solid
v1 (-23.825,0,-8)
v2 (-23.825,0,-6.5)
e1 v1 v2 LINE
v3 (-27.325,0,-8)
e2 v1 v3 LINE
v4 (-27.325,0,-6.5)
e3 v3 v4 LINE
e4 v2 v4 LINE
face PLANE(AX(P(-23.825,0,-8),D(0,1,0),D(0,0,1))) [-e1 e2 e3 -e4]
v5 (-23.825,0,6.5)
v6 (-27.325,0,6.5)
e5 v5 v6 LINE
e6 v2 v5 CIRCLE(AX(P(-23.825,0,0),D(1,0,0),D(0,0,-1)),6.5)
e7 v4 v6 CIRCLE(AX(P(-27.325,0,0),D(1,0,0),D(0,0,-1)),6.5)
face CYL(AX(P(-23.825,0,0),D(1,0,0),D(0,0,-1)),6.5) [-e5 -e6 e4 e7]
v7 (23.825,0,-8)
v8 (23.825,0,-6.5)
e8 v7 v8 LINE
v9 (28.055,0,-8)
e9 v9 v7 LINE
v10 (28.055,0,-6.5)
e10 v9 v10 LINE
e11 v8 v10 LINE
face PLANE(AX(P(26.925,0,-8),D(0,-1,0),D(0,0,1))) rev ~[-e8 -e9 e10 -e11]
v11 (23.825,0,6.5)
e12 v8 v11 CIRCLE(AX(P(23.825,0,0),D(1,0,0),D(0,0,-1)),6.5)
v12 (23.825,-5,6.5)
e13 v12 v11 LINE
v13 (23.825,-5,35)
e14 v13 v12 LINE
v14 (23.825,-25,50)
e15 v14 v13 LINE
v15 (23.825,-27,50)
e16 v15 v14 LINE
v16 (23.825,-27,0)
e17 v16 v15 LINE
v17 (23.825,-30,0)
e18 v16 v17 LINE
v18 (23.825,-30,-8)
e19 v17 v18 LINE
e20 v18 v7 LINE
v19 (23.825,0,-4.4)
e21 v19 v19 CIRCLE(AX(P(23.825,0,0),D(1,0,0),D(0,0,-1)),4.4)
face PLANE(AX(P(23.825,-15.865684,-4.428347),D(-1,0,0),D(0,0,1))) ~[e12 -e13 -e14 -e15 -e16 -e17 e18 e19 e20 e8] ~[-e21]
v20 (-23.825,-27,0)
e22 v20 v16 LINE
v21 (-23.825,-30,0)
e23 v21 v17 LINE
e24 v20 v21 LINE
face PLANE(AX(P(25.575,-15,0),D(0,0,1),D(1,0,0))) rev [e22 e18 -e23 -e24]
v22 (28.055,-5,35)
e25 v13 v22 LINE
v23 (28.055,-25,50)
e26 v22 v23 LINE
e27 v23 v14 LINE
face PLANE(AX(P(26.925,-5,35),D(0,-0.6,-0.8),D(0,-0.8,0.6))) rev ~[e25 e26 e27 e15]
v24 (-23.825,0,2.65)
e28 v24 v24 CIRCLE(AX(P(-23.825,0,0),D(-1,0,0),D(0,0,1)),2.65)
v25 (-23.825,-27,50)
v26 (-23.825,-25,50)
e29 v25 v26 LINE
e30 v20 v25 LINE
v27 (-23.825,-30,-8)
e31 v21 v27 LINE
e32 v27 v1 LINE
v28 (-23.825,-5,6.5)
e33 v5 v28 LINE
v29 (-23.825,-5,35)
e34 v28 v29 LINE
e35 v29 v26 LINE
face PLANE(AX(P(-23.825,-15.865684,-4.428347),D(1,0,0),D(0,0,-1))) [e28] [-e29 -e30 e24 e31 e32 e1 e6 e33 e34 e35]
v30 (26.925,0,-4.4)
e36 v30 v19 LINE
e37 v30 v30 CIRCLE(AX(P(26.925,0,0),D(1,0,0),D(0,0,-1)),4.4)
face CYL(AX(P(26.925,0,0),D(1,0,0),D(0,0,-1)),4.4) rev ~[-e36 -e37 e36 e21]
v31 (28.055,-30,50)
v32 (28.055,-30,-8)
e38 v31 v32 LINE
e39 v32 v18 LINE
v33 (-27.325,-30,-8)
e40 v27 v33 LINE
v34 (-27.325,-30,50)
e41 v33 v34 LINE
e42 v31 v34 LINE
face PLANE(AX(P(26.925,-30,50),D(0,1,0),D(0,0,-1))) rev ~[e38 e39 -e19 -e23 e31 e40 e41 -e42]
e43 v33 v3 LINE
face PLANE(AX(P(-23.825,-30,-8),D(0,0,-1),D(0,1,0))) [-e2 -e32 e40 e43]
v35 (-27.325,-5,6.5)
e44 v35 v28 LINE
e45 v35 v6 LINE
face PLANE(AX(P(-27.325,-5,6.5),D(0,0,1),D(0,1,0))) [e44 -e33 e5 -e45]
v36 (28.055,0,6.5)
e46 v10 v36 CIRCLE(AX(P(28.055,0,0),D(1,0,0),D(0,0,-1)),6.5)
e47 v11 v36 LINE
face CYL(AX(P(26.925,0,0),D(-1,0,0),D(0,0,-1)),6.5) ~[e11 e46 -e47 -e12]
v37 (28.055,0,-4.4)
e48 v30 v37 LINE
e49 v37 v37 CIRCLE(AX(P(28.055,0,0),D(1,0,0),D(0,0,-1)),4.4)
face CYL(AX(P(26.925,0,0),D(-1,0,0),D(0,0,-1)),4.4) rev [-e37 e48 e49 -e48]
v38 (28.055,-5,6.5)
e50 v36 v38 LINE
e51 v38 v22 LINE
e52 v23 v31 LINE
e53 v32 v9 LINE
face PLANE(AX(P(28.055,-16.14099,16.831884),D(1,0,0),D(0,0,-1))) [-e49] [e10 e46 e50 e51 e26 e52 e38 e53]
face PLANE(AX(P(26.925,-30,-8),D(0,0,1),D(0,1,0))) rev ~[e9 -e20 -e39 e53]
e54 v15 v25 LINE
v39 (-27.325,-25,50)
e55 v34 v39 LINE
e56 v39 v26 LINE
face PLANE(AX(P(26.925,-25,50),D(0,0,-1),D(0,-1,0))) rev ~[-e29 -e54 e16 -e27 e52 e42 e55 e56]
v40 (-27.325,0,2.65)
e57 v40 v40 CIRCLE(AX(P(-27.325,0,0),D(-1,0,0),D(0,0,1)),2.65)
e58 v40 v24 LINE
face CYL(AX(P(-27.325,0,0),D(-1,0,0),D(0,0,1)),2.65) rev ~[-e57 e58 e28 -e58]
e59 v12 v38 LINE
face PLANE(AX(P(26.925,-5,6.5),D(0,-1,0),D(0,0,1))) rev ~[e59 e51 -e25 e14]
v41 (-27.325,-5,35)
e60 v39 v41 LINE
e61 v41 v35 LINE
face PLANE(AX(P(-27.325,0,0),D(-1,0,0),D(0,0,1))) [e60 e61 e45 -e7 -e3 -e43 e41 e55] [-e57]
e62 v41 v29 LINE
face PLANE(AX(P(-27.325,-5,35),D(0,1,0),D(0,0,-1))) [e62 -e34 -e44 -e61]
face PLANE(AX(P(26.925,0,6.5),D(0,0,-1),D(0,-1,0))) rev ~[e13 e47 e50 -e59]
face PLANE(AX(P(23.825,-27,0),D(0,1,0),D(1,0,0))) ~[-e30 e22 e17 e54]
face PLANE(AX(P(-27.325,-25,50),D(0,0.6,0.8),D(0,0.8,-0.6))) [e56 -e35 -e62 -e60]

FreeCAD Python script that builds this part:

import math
import FreeCAD as App
import Part
import Sketcher
Q = App.Units.Quantity


def add_polygon(sketch, points):
    """Adds a closed chain of lines whose ends are joined by coincident constraints."""
    first, n = sketch.GeometryCount, len(points)
    for a, b in zip(points, points[1:] + points[:1]):
        sketch.addGeometry(Part.LineSegment(App.Vector(*a, 0), App.Vector(*b, 0)), False)
    for i in range(n):
        sketch.addConstraint(Sketcher.Constraint("Coincident", first + i, 2, first + (i + 1) % n, 1))

doc = App.newDocument("Part")
params = doc.addObject("Spreadsheet::Sheet", "Params")
for row, (alias, value) in enumerate([
    ("sketch1_height", "30 mm"),
    ("sketch1_height2", "3 mm"),
    ("sketch1_width", "3.5 mm"),
    ("pad1_length", "50 mm"),
    ("sketch2_radius", "6.5 mm"),
    ("sketch2_radius2", "1.5 mm"),
    ("sketch2_width", "30 mm"),
    ("sketch2_height", "8 mm"),
    ("pad2_length", "3.5 mm"),
    ("sketch3_diameter", "3 mm"),
    ("pocket1_length", "29.325 mm"),
    ("sketch4_diameter", "5 mm"),
    ("pocket2_length", "1 mm"),
    ("pocket2_length2", "3.15 mm"),
    ("sketch5_diameter", "5.8 mm"),
    ("pocket3_length", "7.15 mm"),
    ("sketch6_width", "25 mm"),
    ("sketch6_width2", "5 mm"),
    ("sketch6_length", "25 mm"),
    ("sketch6_height", "43.5 mm"),
    ("pocket4_length", "7.15 mm"),
    ("sketch7_diameter", "5 mm"),
    ("sketch7_diameter2", "3 mm"),
    ("pad3_length", "0.65 mm"),
    ("sketch8_radius", "6.5 mm"),
    ("sketch8_width", "30 mm"),
    ("sketch8_height", "1.5 mm"),
    ("pocket5_length", "0.4 mm"),
    ("sketch9_diameter", "8.8 mm"),
    ("sketch9_radius", "6.5 mm"),
    ("sketch9_width", "5 mm"),
    ("sketch9_width2", "30 mm"),
    ("sketch9_height", "58 mm"),
    ("pad4_length", "1.13 mm"),
    ("sketch10_diameter", "5 mm"),
    ("sketch10_diameter2", "3 mm"),
    ("pad5_length", "2.5 mm"),
    ("sketch11_diameter", "5.3 mm"),
    ("pocket6_length", "5.05 mm"),
    ("sketch12_diameter", "8.8 mm"),
    ("pocket7_length", "10 mm"),
    ("pocket7_length2", "10 mm"),
], start=1):
    params.set(f"A{row}", alias)
    params.set(f"B{row}", "=" + value)
    params.setAlias(f"B{row}", alias)

body = doc.addObject("PartDesign::Body", "Body")

# Sketch on XY plane
sketch1 = body.newObject("Sketcher::SketchObject", "Sketch")
sketch1.AttachmentSupport = (doc.getObject("XY_Plane"), [""])
sketch1.MapMode = "FlatFace"
add_polygon(sketch1, [(-27.3, 0), (-27.3, -30), (0, -30), (0, -27), (-23.8, -27), (-23.8, 0)])  # lines 0-5
sketch1.addConstraint(Sketcher.Constraint("Vertical", 0))
sketch1.addConstraint(Sketcher.Constraint("Horizontal", 1))
sketch1.addConstraint(Sketcher.Constraint("Vertical", 2))
sketch1.addConstraint(Sketcher.Constraint("Horizontal", 3))
sketch1.addConstraint(Sketcher.Constraint("Vertical", 4))
sketch1.addConstraint(Sketcher.Constraint("Horizontal", 5))
sketch1.addConstraint(Sketcher.Constraint("PointOnObject", 1, 2, -2))
sketch1.addConstraint(Sketcher.Constraint("PointOnObject", 4, 2, -1))
sketch1.addConstraint(Sketcher.Constraint("DistanceY", 0, 2, 0, 1, Q("30 mm")))
sketch1.addConstraint(Sketcher.Constraint("DistanceY", 2, 1, 2, 2, Q("3 mm")))
sketch1.addConstraint(Sketcher.Constraint("DistanceX", 5, 2, 5, 1, Q("3.5 mm")))
sketch1.addConstraint(Sketcher.Constraint("DistanceX", 1, 1, 1, 2, Q("27.325 mm")))
sketch1.setExpression("Constraints[14]", "Params.sketch1_height")
sketch1.setExpression("Constraints[15]", "Params.sketch1_height2")
sketch1.setExpression("Constraints[16]", "Params.sketch1_width")
pad1 = body.newObject("PartDesign::Pad", "Pad")
pad1.Profile = sketch1
pad1.setExpression("Length", "Params.pad1_length")

# Sketch on YZ plane
sketch2 = body.newObject("Sketcher::SketchObject", "Sketch001")
sketch2.AttachmentSupport = (doc.getObject("YZ_Plane"), [""])
sketch2.MapMode = "FlatFace"
sketch2.AttachmentOffset = App.Placement(App.Vector(0, 0, -23.825), App.Rotation())
sketch2.addGeometry(Part.LineSegment(App.Vector(0, -8, 0), App.Vector(0, -6.5, 0)), False)
sketch2.addGeometry(Part.ArcOfCircle(Part.Circle(App.Vector(0, 0, 0), App.Vector(0, 0, 1), 6.5), math.radians(-90), math.radians(90)), False)
sketch2.addGeometry(Part.LineSegment(App.Vector(0, 6.5, 0), App.Vector(0, 1.5, 0)), False)
sketch2.addGeometry(Part.ArcOfCircle(Part.Circle(App.Vector(0, 0, 0), App.Vector(0, 0, 1), 1.5), math.radians(-90), math.radians(90)), False)
sketch2.addGeometry(Part.ArcOfCircle(Part.Circle(App.Vector(0, 0, 0), App.Vector(0, 0, 1), 1.5), math.radians(180), math.radians(270)), False)
sketch2.addGeometry(Part.LineSegment(App.Vector(-1.5, 0, 0), App.Vector(-30, 0, 0)), False)
sketch2.addGeometry(Part.LineSegment(App.Vector(-30, 0, 0), App.Vector(-30, -8, 0)), False)
sketch2.addGeometry(Part.LineSegment(App.Vector(-30, -8, 0), App.Vector(0, -8, 0)), False)
sketch2.addConstraint(Sketcher.Constraint("Coincident", 0, 2, 1, 1))
sketch2.addConstraint(Sketcher.Constraint("Coincident", 1, 2, 2, 1))
sketch2.addConstraint(Sketcher.Constraint("Coincident", 2, 2, 3, 2))
sketch2.addConstraint(Sketcher.Constraint("Tangent", 3, 1, 4, 2))
sketch2.addConstraint(Sketcher.Constraint("Coincident", 4, 1, 5, 1))
sketch2.addConstraint(Sketcher.Constraint("Coincident", 5, 2, 6, 1))
sketch2.addConstraint(Sketcher.Constraint("Coincident", 6, 2, 7, 1))
sketch2.addConstraint(Sketcher.Constraint("Coincident", 7, 2, 0, 1))
sketch2.addConstraint(Sketcher.Constraint("Vertical", 0))
sketch2.addConstraint(Sketcher.Constraint("Vertical", 2))
sketch2.addConstraint(Sketcher.Constraint("Horizontal", 5))
sketch2.addConstraint(Sketcher.Constraint("Vertical", 6))
sketch2.addConstraint(Sketcher.Constraint("Horizontal", 7))
sketch2.addConstraint(Sketcher.Constraint("Coincident", 1, 3, -1, 1))
sketch2.addConstraint(Sketcher.Constraint("Coincident", 3, 3, -1, 1))
sketch2.addConstraint(Sketcher.Constraint("Equal", 3, 4))
sketch2.addConstraint(Sketcher.Constraint("PointOnObject", 0, 2, -2))
sketch2.addConstraint(Sketcher.Constraint("PointOnObject", 1, 2, -2))
sketch2.addConstraint(Sketcher.Constraint("PointOnObject", 3, 1, -2))
sketch2.addConstraint(Sketcher.Constraint("PointOnObject", 4, 1, -1))
sketch2.addConstraint(Sketcher.Constraint("Radius", 1, Q("6.5 mm")))
sketch2.addConstraint(Sketcher.Constraint("Radius", 3, Q("1.5 mm")))
sketch2.addConstraint(Sketcher.Constraint("DistanceX", 7, 1, 7, 2, Q("30 mm")))
sketch2.addConstraint(Sketcher.Constraint("DistanceY", 6, 2, 6, 1, Q("8 mm")))
sketch2.setExpression("Constraints[20]", "Params.sketch2_radius")
sketch2.setExpression("Constraints[21]", "Params.sketch2_radius2")
sketch2.setExpression("Constraints[22]", "Params.sketch2_width")
sketch2.setExpression("Constraints[23]", "Params.sketch2_height")
pad2 = body.newObject("PartDesign::Pad", "Pad001")
pad2.Profile = sketch2
pad2.setExpression("Length", "Params.pad2_length")
pad2.Reversed = True

# Sketch on YZ plane
sketch3 = body.newObject("Sketcher::SketchObject", "Sketch002")
sketch3.AttachmentSupport = (doc.getObject("YZ_Plane"), [""])
sketch3.MapMode = "FlatFace"
sketch3.AttachmentOffset = App.Placement(App.Vector(0, 0, 1), App.Rotation())
sketch3.addGeometry(Part.Circle(App.Vector(0, 0, 0), App.Vector(0, 0, 1), 1.5), False)
sketch3.addConstraint(Sketcher.Constraint("Coincident", 0, 3, -1, 1))
sketch3.addConstraint(Sketcher.Constraint("Diameter", 0, Q("3 mm")))
sketch3.setExpression("Constraints[1]", "Params.sketch3_diameter")
pocket1 = body.newObject("PartDesign::Pocket", "Pocket")
pocket1.Profile = sketch3
pocket1.setExpression("Length", "Params.pocket1_length")
doc.recompute()

mirrored = body.newObject("PartDesign::Mirrored", "Mirrored")
mirrored.Originals = [pad1, pad2, pocket1]
mirrored.MirrorPlane = (doc.getObject("YZ_Plane"), [""])
body.Tip = mirrored

# Sketch on YZ plane
sketch4 = body.newObject("Sketcher::SketchObject", "Sketch003")
sketch4.AttachmentSupport = (doc.getObject("YZ_Plane"), [""])
sketch4.MapMode = "FlatFace"
sketch4.AttachmentOffset = App.Placement(App.Vector(0, 0, -27.325), App.Rotation())
sketch4.addGeometry(Part.Circle(App.Vector(0, 0, 0), App.Vector(0, 0, 1), 2.5), False)
sketch4.addConstraint(Sketcher.Constraint("Coincident", 0, 3, -1, 1))
sketch4.addConstraint(Sketcher.Constraint("Diameter", 0, Q("5 mm")))
sketch4.setExpression("Constraints[1]", "Params.sketch4_diameter")
pocket2 = body.newObject("PartDesign::Pocket", "Pocket001")
pocket2.Profile = sketch4
pocket2.Type = "TwoLengths"
pocket2.setExpression("Length", "Params.pocket2_length")
pocket2.setExpression("Length2", "Params.pocket2_length2")

# Sketch on YZ plane
sketch5 = body.newObject("Sketcher::SketchObject", "Sketch004")
sketch5.AttachmentSupport = (doc.getObject("YZ_Plane"), [""])
sketch5.MapMode = "FlatFace"
sketch5.AttachmentOffset = App.Placement(App.Vector(0, 0, 27.325), App.Rotation())
sketch5.addGeometry(Part.Circle(App.Vector(0, 0, 0), App.Vector(0, 0, 1), 2.9), False)
sketch5.addConstraint(Sketcher.Constraint("Coincident", 0, 3, -1, 1))
sketch5.addConstraint(Sketcher.Constraint("Diameter", 0, Q("5.8 mm")))
sketch5.setExpression("Constraints[1]", "Params.sketch5_diameter")
pocket3 = body.newObject("PartDesign::Pocket", "Pocket002")
pocket3.Profile = sketch5
pocket3.setExpression("Length", "Params.pocket3_length")

# Sketch on YZ plane
sketch6 = body.newObject("Sketcher::SketchObject", "Sketch005")
sketch6.AttachmentSupport = (doc.getObject("YZ_Plane"), [""])
sketch6.MapMode = "FlatFace"
sketch6.AttachmentOffset = App.Placement(App.Vector(0, 0, -27.325), App.Rotation())
add_polygon(sketch6, [(-25, 50), (0, 50), (0, 6), (-5, 6), (-5, 35)])  # lines 0-4
sketch6.addConstraint(Sketcher.Constraint("Horizontal", 0))
sketch6.addConstraint(Sketcher.Constraint("Vertical", 1))
sketch6.addConstraint(Sketcher.Constraint("Horizontal", 2))
sketch6.addConstraint(Sketcher.Constraint("Vertical", 3))
sketch6.addConstraint(Sketcher.Constraint("PointOnObject", 0, 2, -2))
sketch6.addConstraint(Sketcher.Constraint("DistanceX", 0, 1, 0, 2, Q("25 mm")))
sketch6.addConstraint(Sketcher.Constraint("DistanceX", 2, 2, 2, 1, Q("5 mm")))
sketch6.addConstraint(Sketcher.Constraint("Distance", 4, Q("25 mm")))
sketch6.addConstraint(Sketcher.Constraint("DistanceY", 1, 2, 1, 1, Q("43.5 mm")))
sketch6.addConstraint(Sketcher.Constraint("DistanceY", -1, 1, 0, 2, Q("50 mm")))
sketch6.setExpression("Constraints[10]", "Params.sketch6_width")
sketch6.setExpression("Constraints[11]", "Params.sketch6_width2")
sketch6.setExpression("Constraints[12]", "Params.sketch6_length")
sketch6.setExpression("Constraints[13]", "Params.sketch6_height")
pocket4 = body.newObject("PartDesign::Pocket", "Pocket003")
pocket4.Profile = sketch6
pocket4.setExpression("Length", "Params.pocket4_length")
pocket4.Reversed = True
doc.recompute()

mirrored2 = body.newObject("PartDesign::Mirrored", "Mirrored001")
mirrored2.Originals = [pocket4]
mirrored2.MirrorPlane = (doc.getObject("YZ_Plane"), [""])
body.Tip = mirrored2

# Sketch on YZ plane
sketch7 = body.newObject("Sketcher::SketchObject", "Sketch006")
sketch7.AttachmentSupport = (doc.getObject("YZ_Plane"), [""])
sketch7.MapMode = "FlatFace"
sketch7.AttachmentOffset = App.Placement(App.Vector(0, 0, -24.175), App.Rotation())
sketch7.addGeometry(Part.Circle(App.Vector(0, 0, 0), App.Vector(0, 0, 1), 2.5), False)
sketch7.addGeometry(Part.Circle(App.Vector(0, 0, 0), App.Vector(0, 0, 1), 1.5), False)
sketch7.addConstraint(Sketcher.Constraint("Coincident", 0, 3, -1, 1))
sketch7.addConstraint(Sketcher.Constraint("Coincident", 1, 3, -1, 1))
sketch7.addConstraint(Sketcher.Constraint("Diameter", 0, Q("5 mm")))
sketch7.addConstraint(Sketcher.Constraint("Diameter", 1, Q("3 mm")))
sketch7.setExpression("Constraints[2]", "Params.sketch7_diameter")
sketch7.setExpression("Constraints[3]", "Params.sketch7_diameter2")
pad3 = body.newObject("PartDesign::Pad", "Pad002")
pad3.Profile = sketch7
pad3.setExpression("Length", "Params.pad3_length")
pad3.Reversed = True

# Sketch on YZ plane
sketch8 = body.newObject("Sketcher::SketchObject", "Sketch007")
sketch8.AttachmentSupport = (doc.getObject("YZ_Plane"), [""])
sketch8.MapMode = "FlatFace"
sketch8.AttachmentOffset = App.Placement(App.Vector(0, 0, 27.325), App.Rotation())
sketch8.addGeometry(Part.ArcOfCircle(Part.Circle(App.Vector(0, 0, 0), App.Vector(0, 0, 1), 6.5), math.radians(-90), math.radians(90)), False)
sketch8.addGeometry(Part.LineSegment(App.Vector(0, 6.5, 0), App.Vector(-3.8, 6.5, 0)), False)
sketch8.addGeometry(Part.LineSegment(App.Vector(-3.8, 6.5, 0), App.Vector(-3.8, 52.6, 0)), False)
sketch8.addGeometry(Part.LineSegment(App.Vector(-3.8, 52.6, 0), App.Vector(-30, 52.6, 0)), False)
sketch8.addGeometry(Part.LineSegment(App.Vector(-30, 52.6, 0), App.Vector(-30, -8, 0)), False)
sketch8.addGeometry(Part.LineSegment(App.Vector(-30, -8, 0), App.Vector(0, -8, 0)), False)
sketch8.addGeometry(Part.LineSegment(App.Vector(0, -8, 0), App.Vector(0, -6.5, 0)), False)
sketch8.addConstraint(Sketcher.Constraint("Tangent", 0, 2, 1, 1))
sketch8.addConstraint(Sketcher.Constraint("Coincident", 1, 2, 2, 1))
sketch8.addConstraint(Sketcher.Constraint("Coincident", 2, 2, 3, 1))
sketch8.addConstraint(Sketcher.Constraint("Coincident", 3, 2, 4, 1))
sketch8.addConstraint(Sketcher.Constraint("Coincident", 4, 2, 5, 1))
sketch8.addConstraint(Sketcher.Constraint("Coincident", 5, 2, 6, 1))
sketch8.addConstraint(Sketcher.Constraint("Coincident", 6, 2, 0, 1))
sketch8.addConstraint(Sketcher.Constraint("Horizontal", 1))
sketch8.addConstraint(Sketcher.Constraint("Vertical", 2))
sketch8.addConstraint(Sketcher.Constraint("Horizontal", 3))
sketch8.addConstraint(Sketcher.Constraint("Vertical", 4))
sketch8.addConstraint(Sketcher.Constraint("Horizontal", 5))
sketch8.addConstraint(Sketcher.Constraint("Vertical", 6))
sketch8.addConstraint(Sketcher.Constraint("Coincident", 0, 3, -1, 1))
sketch8.addConstraint(Sketcher.Constraint("PointOnObject", 5, 2, -2))
sketch8.addConstraint(Sketcher.Constraint("Radius", 0, Q("6.5 mm")))
sketch8.addConstraint(Sketcher.Constraint("DistanceX", 5, 1, 5, 2, Q("30 mm")))
sketch8.addConstraint(Sketcher.Constraint("DistanceY", 6, 1, 6, 2, Q("1.5 mm")))
sketch8.addConstraint(Sketcher.Constraint("DistanceX", 1, 2, 1, 1, Q("3.791433 mm")))
sketch8.addConstraint(Sketcher.Constraint("DistanceY", 2, 1, 2, 2, Q("46.117217 mm")))
sketch8.setExpression("Constraints[15]", "Params.sketch8_radius")
sketch8.setExpression("Constraints[16]", "Params.sketch8_width")
sketch8.setExpression("Constraints[17]", "Params.sketch8_height")
pocket5 = body.newObject("PartDesign::Pocket", "Pocket004")
pocket5.Profile = sketch8
pocket5.setExpression("Length", "Params.pocket5_length")

# Sketch on YZ plane
sketch9 = body.newObject("Sketcher::SketchObject", "Sketch008")
sketch9.AttachmentSupport = (doc.getObject("YZ_Plane"), [""])
sketch9.MapMode = "FlatFace"
sketch9.AttachmentOffset = App.Placement(App.Vector(0, 0, 26.925), App.Rotation())
sketch9.addGeometry(Part.LineSegment(App.Vector(0, -8, 0), App.Vector(0, -6.5, 0)), False)
sketch9.addGeometry(Part.ArcOfCircle(Part.Circle(App.Vector(0, 0, 0), App.Vector(0, 0, 1), 6.5), math.radians(-90), math.radians(90)), False)
sketch9.addGeometry(Part.LineSegment(App.Vector(0, 6.5, 0), App.Vector(-5, 6.5, 0)), False)
sketch9.addGeometry(Part.LineSegment(App.Vector(-5, 6.5, 0), App.Vector(-5, 35, 0)), False)
sketch9.addGeometry(Part.LineSegment(App.Vector(-5, 35, 0), App.Vector(-25, 50, 0)), False)
sketch9.addGeometry(Part.LineSegment(App.Vector(-25, 50, 0), App.Vector(-30, 50, 0)), False)
sketch9.addGeometry(Part.LineSegment(App.Vector(-30, 50, 0), App.Vector(-30, -8, 0)), False)
sketch9.addGeometry(Part.LineSegment(App.Vector(-30, -8, 0), App.Vector(0, -8, 0)), False)
sketch9.addGeometry(Part.Circle(App.Vector(0, 0, 0), App.Vector(0, 0, 1), 4.4), False)
sketch9.addConstraint(Sketcher.Constraint("Coincident", 0, 2, 1, 1))
sketch9.addConstraint(Sketcher.Constraint("Tangent", 1, 2, 2, 1))
sketch9.addConstraint(Sketcher.Constraint("Coincident", 2, 2, 3, 1))
sketch9.addConstraint(Sketcher.Constraint("Coincident", 3, 2, 4, 1))
sketch9.addConstraint(Sketcher.Constraint("Coincident", 4, 2, 5, 1))
sketch9.addConstraint(Sketcher.Constraint("Coincident", 5, 2, 6, 1))
sketch9.addConstraint(Sketcher.Constraint("Coincident", 6, 2, 7, 1))
sketch9.addConstraint(Sketcher.Constraint("Coincident", 7, 2, 0, 1))
sketch9.addConstraint(Sketcher.Constraint("Vertical", 0))
sketch9.addConstraint(Sketcher.Constraint("Horizontal", 2))
sketch9.addConstraint(Sketcher.Constraint("Vertical", 3))
sketch9.addConstraint(Sketcher.Constraint("Horizontal", 5))
sketch9.addConstraint(Sketcher.Constraint("Vertical", 6))
sketch9.addConstraint(Sketcher.Constraint("Horizontal", 7))
sketch9.addConstraint(Sketcher.Constraint("Coincident", 1, 3, -1, 1))
sketch9.addConstraint(Sketcher.Constraint("Coincident", 8, 3, -1, 1))
sketch9.addConstraint(Sketcher.Constraint("PointOnObject", 0, 2, -2))
sketch9.addConstraint(Sketcher.Constraint("Equal", 2, 5))
sketch9.addConstraint(Sketcher.Constraint("Diameter", 8, Q("8.8 mm")))
sketch9.addConstraint(Sketcher.Constraint("Radius", 1, Q("6.5 mm")))
sketch9.addConstraint(Sketcher.Constraint("DistanceX", 2, 2, 2, 1, Q("5 mm")))
sketch9.addConstraint(Sketcher.Constraint("DistanceX", 7, 1, 7, 2, Q("30 mm")))
sketch9.addConstraint(Sketcher.Constraint("DistanceY", 6, 2, 6, 1, Q("58 mm")))
sketch9.addConstraint(Sketcher.Constraint("Distance", 4, Q("25 mm")))
sketch9.addConstraint(Sketcher.Constraint("DistanceY", 0, 1, 0, 2, Q("1.5 mm")))
sketch9.setExpression("Constraints[18]", "Params.sketch9_diameter")
sketch9.setExpression("Constraints[19]", "Params.sketch9_radius")
sketch9.setExpression("Constraints[20]", "Params.sketch9_width")
sketch9.setExpression("Constraints[21]", "Params.sketch9_width2")
sketch9.setExpression("Constraints[22]", "Params.sketch9_height")
pad4 = body.newObject("PartDesign::Pad", "Pad003")
pad4.Profile = sketch9
pad4.setExpression("Length", "Params.pad4_length")

# Sketch on YZ plane
sketch10 = body.newObject("Sketcher::SketchObject", "Sketch009")
sketch10.AttachmentSupport = (doc.getObject("YZ_Plane"), [""])
sketch10.MapMode = "FlatFace"
sketch10.AttachmentOffset = App.Placement(App.Vector(0, 0, -27.325), App.Rotation())
sketch10.addGeometry(Part.Circle(App.Vector(0, 0, 0), App.Vector(0, 0, 1), 2.5), False)
sketch10.addGeometry(Part.Circle(App.Vector(0, 0, 0), App.Vector(0, 0, 1), 1.5), False)
sketch10.addConstraint(Sketcher.Constraint("Coincident", 0, 3, -1, 1))
sketch10.addConstraint(Sketcher.Constraint("Coincident", 1, 3, -1, 1))
sketch10.addConstraint(Sketcher.Constraint("Diameter", 0, Q("5 mm")))
sketch10.addConstraint(Sketcher.Constraint("Diameter", 1, Q("3 mm")))
sketch10.setExpression("Constraints[2]", "Params.sketch10_diameter")
sketch10.setExpression("Constraints[3]", "Params.sketch10_diameter2")
pad5 = body.newObject("PartDesign::Pad", "Pad004")
pad5.Profile = sketch10
pad5.setExpression("Length", "Params.pad5_length")

# Sketch on YZ plane
sketch11 = body.newObject("Sketcher::SketchObject", "Sketch010")
sketch11.AttachmentSupport = (doc.getObject("YZ_Plane"), [""])
sketch11.MapMode = "FlatFace"
sketch11.AttachmentOffset = App.Placement(App.Vector(0, 0, -27.325), App.Rotation())
sketch11.addGeometry(Part.Circle(App.Vector(0, 0, 0), App.Vector(0, 0, 1), 2.6), False)
sketch11.addConstraint(Sketcher.Constraint("Coincident", 0, 3, -1, 1))
sketch11.addConstraint(Sketcher.Constraint("Diameter", 0, Q("5.3 mm")))
sketch11.setExpression("Constraints[1]", "Params.sketch11_diameter")
pocket6 = body.newObject("PartDesign::Pocket", "Pocket005")
pocket6.Profile = sketch11
pocket6.setExpression("Length", "Params.pocket6_length")
pocket6.Reversed = True

# Sketch on YZ plane
sketch12 = body.newObject("Sketcher::SketchObject", "Sketch011")
sketch12.AttachmentSupport = (doc.getObject("YZ_Plane"), [""])
sketch12.MapMode = "FlatFace"
sketch12.AttachmentOffset = App.Placement(App.Vector(0, 0, 26.925), App.Rotation())
sketch12.addGeometry(Part.Circle(App.Vector(0, 0, 0), App.Vector(0, 0, 1), 4.4), False)
sketch12.addConstraint(Sketcher.Constraint("Coincident", 0, 3, -1, 1))
sketch12.addConstraint(Sketcher.Constraint("Diameter", 0, Q("8.8 mm")))
sketch12.setExpression("Constraints[1]", "Params.sketch12_diameter")
pocket7 = body.newObject("PartDesign::Pocket", "Pocket006")
pocket7.Profile = sketch12
pocket7.Type = "TwoLengths"
pocket7.setExpression("Length", "Params.pocket7_length")
pocket7.setExpression("Length2", "Params.pocket7_length2")
pocket7.Reversed = True

doc.recompute()
